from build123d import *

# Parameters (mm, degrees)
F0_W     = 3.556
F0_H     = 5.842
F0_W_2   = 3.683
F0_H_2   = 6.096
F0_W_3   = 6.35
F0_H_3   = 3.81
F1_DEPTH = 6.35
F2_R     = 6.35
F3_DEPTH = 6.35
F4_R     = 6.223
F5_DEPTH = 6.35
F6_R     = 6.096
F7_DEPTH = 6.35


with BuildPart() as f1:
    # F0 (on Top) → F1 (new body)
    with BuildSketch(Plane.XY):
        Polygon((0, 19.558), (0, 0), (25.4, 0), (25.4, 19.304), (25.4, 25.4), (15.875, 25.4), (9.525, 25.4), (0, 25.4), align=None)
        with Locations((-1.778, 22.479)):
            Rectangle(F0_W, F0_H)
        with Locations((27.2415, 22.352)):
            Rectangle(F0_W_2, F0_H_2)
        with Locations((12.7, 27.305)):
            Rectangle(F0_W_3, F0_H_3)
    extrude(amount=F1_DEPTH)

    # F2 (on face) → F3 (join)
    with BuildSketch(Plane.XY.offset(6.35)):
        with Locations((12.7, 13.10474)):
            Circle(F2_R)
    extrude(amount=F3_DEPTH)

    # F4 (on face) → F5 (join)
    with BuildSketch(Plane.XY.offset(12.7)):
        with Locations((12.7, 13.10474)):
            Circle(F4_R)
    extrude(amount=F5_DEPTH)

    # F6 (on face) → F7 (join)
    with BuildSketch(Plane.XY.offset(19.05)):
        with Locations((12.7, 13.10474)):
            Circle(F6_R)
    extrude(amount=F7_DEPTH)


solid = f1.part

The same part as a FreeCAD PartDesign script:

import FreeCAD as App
import Part
import Sketcher
from FreeCAD import Vector
Q = App.Units.Quantity

doc = App.newDocument("Part")
body = doc.addObject("PartDesign::Body", "Body")

# Sketch on XY plane
sketch1 = body.newObject("Sketcher::SketchObject", "Sketch")
sketch1.AttachmentSupport = (doc.getObject("XY_Plane"), [""])
sketch1.MapMode = "FlatFace"
sketch1.addGeometry(Part.LineSegment(Vector(0, 0, 0), Vector(25.4, 0, 0)), False)
sketch1.addGeometry(Part.LineSegment(Vector(25.4, 0, 0), Vector(25.4, 19.3, 0)), False)
sketch1.addGeometry(Part.LineSegment(Vector(25.4, 19.3, 0), Vector(29.1, 19.3, 0)), False)
sketch1.addGeometry(Part.LineSegment(Vector(29.1, 19.3, 0), Vector(29.1, 25.4, 0)), False)
sketch1.addGeometry(Part.LineSegment(Vector(29.1, 25.4, 0), Vector(15.9, 25.4, 0)), False)
sketch1.addGeometry(Part.LineSegment(Vector(15.9, 25.4, 0), Vector(15.9, 29.2, 0)), False)
sketch1.addGeometry(Part.LineSegment(Vector(15.9, 29.2, 0), Vector(9.5, 29.2, 0)), False)
sketch1.addGeometry(Part.LineSegment(Vector(9.5, 29.2, 0), Vector(9.5, 25.4, 0)), False)
sketch1.addGeometry(Part.LineSegment(Vector(9.5, 25.4, 0), Vector(-3.6, 25.4, 0)), False)
sketch1.addGeometry(Part.LineSegment(Vector(-3.6, 25.4, 0), Vector(-3.6, 19.6, 0)), False)
sketch1.addGeometry(Part.LineSegment(Vector(-3.6, 19.6, 0), Vector(0, 19.6, 0)), False)
sketch1.addGeometry(Part.LineSegment(Vector(0, 19.6, 0), Vector(0, 0, 0)), False)
sketch1.addConstraint(Sketcher.Constraint("Coincident", 0, 2, 1, 1))
sketch1.addConstraint(Sketcher.Constraint("Coincident", 1, 2, 2, 1))
sketch1.addConstraint(Sketcher.Constraint("Coincident", 2, 2, 3, 1))
sketch1.addConstraint(Sketcher.Constraint("Coincident", 3, 2, 4, 1))
sketch1.addConstraint(Sketcher.Constraint("Coincident", 4, 2, 5, 1))
sketch1.addConstraint(Sketcher.Constraint("Coincident", 5, 2, 6, 1))
sketch1.addConstraint(Sketcher.Constraint("Coincident", 6, 2, 7, 1))
sketch1.addConstraint(Sketcher.Constraint("Coincident", 7, 2, 8, 1))
sketch1.addConstraint(Sketcher.Constraint("Coincident", 8, 2, 9, 1))
sketch1.addConstraint(Sketcher.Constraint("Coincident", 9, 2, 10, 1))
sketch1.addConstraint(Sketcher.Constraint("Coincident", 10, 2, 11, 1))
sketch1.addConstraint(Sketcher.Constraint("Coincident", 11, 2, 0, 1))
sketch1.addConstraint(Sketcher.Constraint("Horizontal", 0))
sketch1.addConstraint(Sketcher.Constraint("Vertical", 1))
sketch1.addConstraint(Sketcher.Constraint("Horizontal", 2))
sketch1.addConstraint(Sketcher.Constraint("Vertical", 3))
sketch1.addConstraint(Sketcher.Constraint("Horizontal", 4))
sketch1.addConstraint(Sketcher.Constraint("Vertical", 5))
sketch1.addConstraint(Sketcher.Constraint("Horizontal", 6))
sketch1.addConstraint(Sketcher.Constraint("Vertical", 7))
sketch1.addConstraint(Sketcher.Constraint("Horizontal", 8))
sketch1.addConstraint(Sketcher.Constraint("Vertical", 9))
sketch1.addConstraint(Sketcher.Constraint("Horizontal", 10))
sketch1.addConstraint(Sketcher.Constraint("Vertical", 11))
sketch1.addConstraint(Sketcher.Constraint("Coincident", 11, 2, -1, 1))
sketch1.addConstraint(Sketcher.Constraint("Horizontal", 4, 2, 7, 2))
sketch1.addConstraint(Sketcher.Constraint("DistanceX", 0, 1, 0, 2, Q("1 in")))
sketch1.addConstraint(Sketcher.Constraint("DistanceY", -1, 1, 3, 2, Q("1 in")))
sketch1.addConstraint(Sketcher.Constraint("DistanceX", 4, 2, 4, 1, Q("0.52 in")))
sketch1.addConstraint(Sketcher.Constraint("DistanceX", 6, 2, 6, 1, Q("0.25 in")))
sketch1.addConstraint(Sketcher.Constraint("DistanceX", 10, 1, 10, 2, Q("0.14 in")))
sketch1.addConstraint(Sketcher.Constraint("DistanceY", 1, 1, 1, 2, Q("0.76 in")))
sketch1.addConstraint(Sketcher.Constraint("DistanceY", 5, 1, 5, 2, Q("0.15 in")))
sketch1.addConstraint(Sketcher.Constraint("DistanceY", 9, 2, 9, 1, Q("0.23 in")))
sketch1.addConstraint(Sketcher.Constraint("DistanceX", 2, 1, 2, 2, Q("0.145 in")))
pad1 = body.newObject("PartDesign::Pad", "Pad")
pad1.Profile = sketch1
pad1.Length = Q("0.25 in")

# Sketch on XY plane
sketch2 = body.newObject("Sketcher::SketchObject", "Sketch001")
sketch2.AttachmentSupport = (doc.getObject("XY_Plane"), [""])
sketch2.MapMode = "FlatFace"
sketch2.AttachmentOffset = App.Placement(Vector(0, 0, 0.25 * 25.4), App.Rotation())
sketch2.addGeometry(Part.Circle(Vector(13, 13, 0), Vector(0, 0, 1), 6), False)
sketch2.addConstraint(Sketcher.Constraint("Diameter", 0, Q("0.5 in")))
sketch2.addConstraint(Sketcher.Constraint("DistanceX", -1, 1, 0, 3, Q("0.5 in")))
sketch2.addConstraint(Sketcher.Constraint("DistanceY", -1, 1, 0, 3, 13.10474))
pad2 = body.newObject("PartDesign::Pad", "Pad001")
pad2.Profile = sketch2
pad2.Length = Q("0.25 in")

# Sketch on XY plane
sketch3 = body.newObject("Sketcher::SketchObject", "Sketch002")
sketch3.AttachmentSupport = (doc.getObject("XY_Plane"), [""])
sketch3.MapMode = "FlatFace"
sketch3.AttachmentOffset = App.Placement(Vector(0, 0, 0.5 * 25.4), App.Rotation())
sketch3.addGeometry(Part.Circle(Vector(13, 13, 0), Vector(0, 0, 1), 6), False)
sketch3.addConstraint(Sketcher.Constraint("Diameter", 0, Q("0.49 in")))
sketch3.addConstraint(Sketcher.Constraint("DistanceX", -1, 1, 0, 3, Q("0.5 in")))
sketch3.addConstraint(Sketcher.Constraint("DistanceY", -1, 1, 0, 3, 13.10474))
pad3 = body.newObject("PartDesign::Pad", "Pad002")
pad3.Profile = sketch3
pad3.Length = Q("0.25 in")

# Sketch on XY plane
sketch4 = body.newObject("Sketcher::SketchObject", "Sketch003")
sketch4.AttachmentSupport = (doc.getObject("XY_Plane"), [""])
sketch4.MapMode = "FlatFace"
sketch4.AttachmentOffset = App.Placement(Vector(0, 0, 0.75 * 25.4), App.Rotation())
sketch4.addGeometry(Part.Circle(Vector(13, 13, 0), Vector(0, 0, 1), 6), False)
sketch4.addConstraint(Sketcher.Constraint("Diameter", 0, Q("0.48 in")))
sketch4.addConstraint(Sketcher.Constraint("DistanceX", -1, 1, 0, 3, Q("0.5 in")))
sketch4.addConstraint(Sketcher.Constraint("DistanceY", -1, 1, 0, 3, 13.10474))
pad4 = body.newObject("PartDesign::Pad", "Pad003")
pad4.Profile = sketch4
pad4.Length = Q("0.25 in")

doc.recompute()
